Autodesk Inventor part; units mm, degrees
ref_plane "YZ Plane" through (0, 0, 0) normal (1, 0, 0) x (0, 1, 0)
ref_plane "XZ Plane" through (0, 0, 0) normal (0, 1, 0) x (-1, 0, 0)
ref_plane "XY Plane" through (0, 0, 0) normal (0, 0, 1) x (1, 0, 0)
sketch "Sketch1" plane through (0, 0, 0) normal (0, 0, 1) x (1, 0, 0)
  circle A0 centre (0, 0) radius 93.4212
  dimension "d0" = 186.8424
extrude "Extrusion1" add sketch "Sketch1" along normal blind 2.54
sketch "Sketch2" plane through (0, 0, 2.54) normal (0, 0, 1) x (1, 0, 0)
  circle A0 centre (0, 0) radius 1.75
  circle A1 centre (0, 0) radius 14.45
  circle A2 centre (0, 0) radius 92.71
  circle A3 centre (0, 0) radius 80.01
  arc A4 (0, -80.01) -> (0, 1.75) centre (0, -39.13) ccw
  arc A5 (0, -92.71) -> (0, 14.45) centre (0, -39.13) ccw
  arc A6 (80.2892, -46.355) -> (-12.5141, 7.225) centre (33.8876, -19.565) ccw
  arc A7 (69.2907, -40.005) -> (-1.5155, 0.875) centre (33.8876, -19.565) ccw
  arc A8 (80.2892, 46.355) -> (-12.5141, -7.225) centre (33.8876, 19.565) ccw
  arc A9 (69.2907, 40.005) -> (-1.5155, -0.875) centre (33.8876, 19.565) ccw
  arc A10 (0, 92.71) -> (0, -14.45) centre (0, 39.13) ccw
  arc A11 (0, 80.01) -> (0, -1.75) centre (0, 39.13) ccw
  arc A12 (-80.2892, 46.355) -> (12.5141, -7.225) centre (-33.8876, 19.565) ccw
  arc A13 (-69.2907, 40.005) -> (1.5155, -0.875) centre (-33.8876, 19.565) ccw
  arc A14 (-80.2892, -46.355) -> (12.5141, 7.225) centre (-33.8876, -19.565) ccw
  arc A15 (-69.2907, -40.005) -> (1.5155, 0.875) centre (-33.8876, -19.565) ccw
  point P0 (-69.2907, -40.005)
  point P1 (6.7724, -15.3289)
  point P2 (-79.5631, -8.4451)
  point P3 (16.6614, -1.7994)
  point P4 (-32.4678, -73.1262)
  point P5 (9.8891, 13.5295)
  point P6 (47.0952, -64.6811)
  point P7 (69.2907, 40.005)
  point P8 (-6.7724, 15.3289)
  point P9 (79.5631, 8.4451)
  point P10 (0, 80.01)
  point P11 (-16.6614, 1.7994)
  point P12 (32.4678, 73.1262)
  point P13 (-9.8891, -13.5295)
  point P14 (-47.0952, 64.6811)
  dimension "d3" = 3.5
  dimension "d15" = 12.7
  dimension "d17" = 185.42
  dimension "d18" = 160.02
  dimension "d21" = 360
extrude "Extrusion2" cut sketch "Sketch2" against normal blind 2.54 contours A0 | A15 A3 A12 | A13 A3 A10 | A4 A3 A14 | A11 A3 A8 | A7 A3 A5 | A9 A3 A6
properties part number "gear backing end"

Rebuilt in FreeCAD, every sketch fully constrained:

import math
import FreeCAD as App
import Part
import Sketcher

V = App.Vector
Q = App.Units.Quantity

doc = App.newDocument("Part")
body = doc.addObject("PartDesign::Body", "Body")

sketch1 = body.newObject("Sketcher::SketchObject", "Sketch")
sketch1.AttachmentSupport = (doc.getObject("XY_Plane"), [""])
sketch1.MapMode = "FlatFace"
sketch1.addGeometry(Part.Circle(V(0, 0, 0), V(0, 0, 1), 93), False)
sketch1.addConstraint([
    Sketcher.Constraint("Coincident", 0, 3, -1, 1),
    Sketcher.Constraint("Diameter", 0, Q("7.356 in")),
])
pad1 = body.newObject("PartDesign::Pad", "Pad")
pad1.Profile = sketch1
pad1.Length = Q("0.1 in")

sketch2 = body.newObject("Sketcher::SketchObject", "Sketch001")
sketch2.AttachmentSupport = (doc.getObject("XY_Plane"), [""])
sketch2.MapMode = "FlatFace"
sketch2.AttachmentOffset = App.Placement(V(0, 0, 0.1 * 25.4), App.Rotation())
sketch2.addGeometry([
    Part.Circle(V(0, 0, 0), V(0, 0, 1), 1.8),
    Part.ArcOfCircle(Part.Circle(V(-33.9, -19.6, 0), V(0, 0, 1), 40.9), math.radians(-150), math.radians(6)),
    Part.ArcOfCircle(Part.Circle(V(-33.9, 19.6, 0), V(0, 0, 1), 53.6), math.radians(-148), math.radians(-41)),
    Part.ArcOfCircle(Part.Circle(V(0, 0, 0), V(0, 0, 1), 80), math.radians(-174), math.radians(-150)),
    Part.ArcOfCircle(Part.Circle(V(-33.9, 19.6, 0), V(0, 0, 1), 40.9), math.radians(150), math.radians(306)),
    Part.ArcOfCircle(Part.Circle(V(0, 39.1, 0), V(0, 0, 1), 53.6), math.radians(152), math.radians(259)),
    Part.ArcOfCircle(Part.Circle(V(0, 0, 0), V(0, 0, 1), 80), math.radians(126), math.radians(150)),
    Part.ArcOfCircle(Part.Circle(V(0, -39.1, 0), V(0, 0, 1), 40.9), math.radians(-90), math.radians(66)),
    Part.ArcOfCircle(Part.Circle(V(-33.9, -19.6, 0), V(0, 0, 1), 53.6), math.radians(-88), math.radians(19)),
    Part.ArcOfCircle(Part.Circle(V(0, 0, 0), V(0, 0, 1), 80), math.radians(-114), math.radians(-90)),
    Part.ArcOfCircle(Part.Circle(V(0, 39.1, 0), V(0, 0, 1), 40.9), math.radians(90), math.radians(246)),
    Part.ArcOfCircle(Part.Circle(V(33.9, 19.6, 0), V(0, 0, 1), 53.6), math.radians(92), math.radians(199)),
    Part.ArcOfCircle(Part.Circle(V(0, 0, 0), V(0, 0, 1), 80), math.radians(66), math.radians(90)),
    Part.ArcOfCircle(Part.Circle(V(33.9, -19.6, 0), V(0, 0, 1), 40.9), math.radians(-30), math.radians(126)),
    Part.ArcOfCircle(Part.Circle(V(0, -39.1, 0), V(0, 0, 1), 53.6), math.radians(-28), math.radians(79)),
    Part.ArcOfCircle(Part.Circle(V(0, 0, 0), V(0, 0, 1), 80), math.radians(-54), math.radians(-30)),
    Part.ArcOfCircle(Part.Circle(V(33.9, 19.6, 0), V(0, 0, 1), 40.9), math.radians(30), math.radians(186)),
    Part.ArcOfCircle(Part.Circle(V(33.9, -19.6, 0), V(0, 0, 1), 53.6), math.radians(32), math.radians(139)),
    Part.ArcOfCircle(Part.Circle(V(0, 0, 0), V(0, 0, 1), 80), math.radians(6), math.radians(30)),
], False)
sketch2.addConstraint([
    Sketcher.Constraint("Coincident", 1, 2, 2, 2),
    Sketcher.Constraint("Coincident", 2, 1, 3, 1),
    Sketcher.Constraint("Tangent", 3, 2, 1, 1),
    Sketcher.Constraint("Coincident", 4, 2, 5, 2),
    Sketcher.Constraint("Coincident", 5, 1, 6, 1),
    Sketcher.Constraint("Tangent", 6, 2, 4, 1),
    Sketcher.Constraint("Coincident", 7, 2, 8, 2),
    Sketcher.Constraint("Coincident", 8, 1, 9, 1),
    Sketcher.Constraint("Tangent", 9, 2, 7, 1),
    Sketcher.Constraint("Coincident", 10, 2, 11, 2),
    Sketcher.Constraint("Coincident", 11, 1, 12, 1),
    Sketcher.Constraint("Tangent", 12, 2, 10, 1),
    Sketcher.Constraint("Coincident", 13, 2, 14, 2),
    Sketcher.Constraint("Coincident", 14, 1, 15, 1),
    Sketcher.Constraint("Tangent", 15, 2, 13, 1),
    Sketcher.Constraint("Coincident", 16, 2, 17, 2),
    Sketcher.Constraint("Coincident", 17, 1, 18, 1),
    Sketcher.Constraint("Tangent", 18, 2, 16, 1),
    Sketcher.Constraint("Coincident", 0, 3, -1, 1),
    Sketcher.Constraint("Coincident", 3, 3, -1, 1),
    Sketcher.Constraint("Coincident", 6, 3, -1, 1),
    Sketcher.Constraint("Coincident", 9, 3, -1, 1),
    Sketcher.Constraint("Coincident", 12, 3, -1, 1),
    Sketcher.Constraint("Coincident", 15, 3, -1, 1),
    Sketcher.Constraint("Coincident", 18, 3, -1, 1),
    Sketcher.Constraint("Coincident", 4, 3, 2, 3),
    Sketcher.Constraint("Coincident", 8, 3, 1, 3),
    Sketcher.Constraint("Coincident", 10, 3, 5, 3),
    Sketcher.Constraint("Coincident", 14, 3, 7, 3),
    Sketcher.Constraint("Coincident", 16, 3, 11, 3),
    Sketcher.Constraint("Coincident", 17, 3, 13, 3),
    Sketcher.Constraint("Equal", 1, 4),
    Sketcher.Constraint("Equal", 2, 5),
    Sketcher.Constraint("Equal", 3, 6),
    Sketcher.Constraint("Equal", 4, 7),
    Sketcher.Constraint("Equal", 5, 8),
    Sketcher.Constraint("Equal", 6, 9),
    Sketcher.Constraint("Equal", 7, 10),
    Sketcher.Constraint("Equal", 8, 11),
    Sketcher.Constraint("Equal", 9, 12),
    Sketcher.Constraint("Equal", 10, 13),
    Sketcher.Constraint("Equal", 11, 14),
    Sketcher.Constraint("Equal", 12, 15),
    Sketcher.Constraint("Equal", 13, 16),
    Sketcher.Constraint("Equal", 14, 17),
    Sketcher.Constraint("Equal", 15, 18),
    Sketcher.Constraint("Symmetric", 7, 2, 10, 2, -1, 1),
    Sketcher.Constraint("PointOnObject", 5, 3, -2),
    Sketcher.Constraint("Horizontal", 4, 3, 11, 3),
    Sketcher.Constraint("Horizontal", 8, 3, 13, 3),
    Sketcher.Constraint("Radius", 3, Q("3.15 in")),
    Sketcher.Constraint("Diameter", 0, Q("0.1378 in")),
    Sketcher.Constraint("Radius", 1, 40.88),
    Sketcher.Constraint("Radius", 2, 53.58),
    Sketcher.Constraint("DistanceY", 3, 2, -1, 1, Q("1.575 in")),
])
pocket1 = body.newObject("PartDesign::Pocket", "Pocket")
pocket1.Profile = sketch2
pocket1.Length = Q("0.1 in")

doc.recompute()
